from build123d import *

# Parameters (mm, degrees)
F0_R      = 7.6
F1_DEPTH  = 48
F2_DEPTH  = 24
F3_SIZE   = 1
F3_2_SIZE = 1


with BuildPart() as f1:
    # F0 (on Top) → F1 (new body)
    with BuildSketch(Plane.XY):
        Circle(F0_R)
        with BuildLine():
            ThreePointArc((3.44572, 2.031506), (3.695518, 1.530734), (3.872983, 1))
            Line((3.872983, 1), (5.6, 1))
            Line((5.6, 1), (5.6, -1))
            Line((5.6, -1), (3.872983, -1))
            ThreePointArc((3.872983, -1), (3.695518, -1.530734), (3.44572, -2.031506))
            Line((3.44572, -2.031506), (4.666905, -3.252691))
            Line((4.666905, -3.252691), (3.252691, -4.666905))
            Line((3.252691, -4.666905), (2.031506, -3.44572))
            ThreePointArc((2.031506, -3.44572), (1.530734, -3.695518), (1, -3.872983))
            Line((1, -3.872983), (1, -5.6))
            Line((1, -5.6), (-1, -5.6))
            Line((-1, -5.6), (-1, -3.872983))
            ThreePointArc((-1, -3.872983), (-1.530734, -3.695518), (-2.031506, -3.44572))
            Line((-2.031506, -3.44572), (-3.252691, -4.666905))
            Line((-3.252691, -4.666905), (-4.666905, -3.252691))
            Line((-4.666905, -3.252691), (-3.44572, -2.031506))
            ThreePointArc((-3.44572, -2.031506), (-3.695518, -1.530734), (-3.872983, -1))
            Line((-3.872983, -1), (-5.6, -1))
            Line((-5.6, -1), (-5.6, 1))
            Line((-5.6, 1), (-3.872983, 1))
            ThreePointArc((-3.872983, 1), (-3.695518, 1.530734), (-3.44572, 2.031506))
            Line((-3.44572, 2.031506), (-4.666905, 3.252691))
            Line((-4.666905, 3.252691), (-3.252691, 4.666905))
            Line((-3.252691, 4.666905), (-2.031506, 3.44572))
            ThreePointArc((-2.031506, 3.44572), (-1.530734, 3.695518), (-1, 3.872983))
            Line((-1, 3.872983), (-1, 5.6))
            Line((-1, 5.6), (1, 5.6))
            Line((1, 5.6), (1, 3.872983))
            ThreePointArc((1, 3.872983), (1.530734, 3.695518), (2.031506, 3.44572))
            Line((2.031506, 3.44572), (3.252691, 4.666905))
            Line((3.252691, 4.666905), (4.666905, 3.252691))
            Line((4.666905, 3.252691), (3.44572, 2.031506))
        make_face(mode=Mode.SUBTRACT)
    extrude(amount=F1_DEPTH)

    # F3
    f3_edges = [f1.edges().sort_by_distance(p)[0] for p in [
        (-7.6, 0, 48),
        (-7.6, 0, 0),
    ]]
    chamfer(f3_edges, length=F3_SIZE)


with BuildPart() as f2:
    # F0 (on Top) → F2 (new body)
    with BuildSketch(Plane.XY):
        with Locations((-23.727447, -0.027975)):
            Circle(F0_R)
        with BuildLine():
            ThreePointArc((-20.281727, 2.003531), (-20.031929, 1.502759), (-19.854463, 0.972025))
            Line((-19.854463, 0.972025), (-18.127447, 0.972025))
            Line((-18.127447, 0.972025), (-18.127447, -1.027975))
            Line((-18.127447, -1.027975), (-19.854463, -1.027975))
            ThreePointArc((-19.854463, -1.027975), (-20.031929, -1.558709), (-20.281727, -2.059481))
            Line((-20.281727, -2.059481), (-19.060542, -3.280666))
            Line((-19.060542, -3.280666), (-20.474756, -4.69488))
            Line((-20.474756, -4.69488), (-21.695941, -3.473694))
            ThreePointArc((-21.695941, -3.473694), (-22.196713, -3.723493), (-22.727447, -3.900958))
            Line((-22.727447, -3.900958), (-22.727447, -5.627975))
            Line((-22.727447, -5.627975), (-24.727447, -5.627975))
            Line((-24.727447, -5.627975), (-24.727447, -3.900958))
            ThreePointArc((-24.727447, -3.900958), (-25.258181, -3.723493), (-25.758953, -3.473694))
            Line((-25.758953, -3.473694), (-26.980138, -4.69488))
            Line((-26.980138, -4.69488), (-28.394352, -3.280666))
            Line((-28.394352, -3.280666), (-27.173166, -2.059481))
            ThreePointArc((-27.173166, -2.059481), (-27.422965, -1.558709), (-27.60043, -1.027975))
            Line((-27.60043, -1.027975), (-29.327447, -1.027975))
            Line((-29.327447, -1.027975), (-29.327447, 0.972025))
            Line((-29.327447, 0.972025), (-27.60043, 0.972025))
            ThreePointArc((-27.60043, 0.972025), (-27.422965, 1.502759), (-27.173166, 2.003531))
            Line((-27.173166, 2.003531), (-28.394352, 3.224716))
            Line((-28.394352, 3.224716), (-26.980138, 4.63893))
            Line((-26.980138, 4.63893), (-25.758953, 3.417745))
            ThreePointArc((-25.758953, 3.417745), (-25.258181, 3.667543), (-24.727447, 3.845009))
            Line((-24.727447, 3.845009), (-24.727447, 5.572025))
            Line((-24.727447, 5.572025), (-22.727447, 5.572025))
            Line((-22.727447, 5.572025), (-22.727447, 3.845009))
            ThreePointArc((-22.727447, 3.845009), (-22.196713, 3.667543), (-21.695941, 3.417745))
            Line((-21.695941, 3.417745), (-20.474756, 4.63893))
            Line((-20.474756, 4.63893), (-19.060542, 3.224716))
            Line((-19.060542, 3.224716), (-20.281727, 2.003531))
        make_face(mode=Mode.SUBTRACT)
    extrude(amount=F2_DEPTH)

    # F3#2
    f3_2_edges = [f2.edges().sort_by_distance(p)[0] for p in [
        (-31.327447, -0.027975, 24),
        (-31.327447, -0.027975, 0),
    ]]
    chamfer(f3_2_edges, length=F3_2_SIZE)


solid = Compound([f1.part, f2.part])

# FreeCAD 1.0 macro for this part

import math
import FreeCAD as App
import Part
import Sketcher


def edges_at(feature, points):
    """Names of the edges that pass closest to the given points."""
    edges = feature.Shape.Edges
    near = lambda p: min(range(len(edges)), key=lambda i: edges[i].distToShape(Part.Vertex(*p))[0])
    return sorted({f"Edge{near(p) + 1}" for p in points})

doc = App.newDocument("Part")
params = doc.addObject("Spreadsheet::Sheet", "Params")
for row, (alias, value) in enumerate([
    ("sketch1_diameter", "15.2 mm"),
    ("sketch1_width", "2 mm"),
    ("sketch1_length", "2.000001 mm"),
    ("pad1_length", "48 mm"),
    ("chamfer_size", "1 mm"),
    ("sketch2_diameter", "15.2 mm"),
    ("sketch2_width", "2 mm"),
    ("sketch2_length", "2.000001 mm"),
    ("pad2_length", "24 mm"),
    ("chamfer2_size", "1 mm"),
], start=1):
    params.set(f"A{row}", alias)
    params.set(f"B{row}", "=" + value)
    params.setAlias(f"B{row}", alias)

body = doc.addObject("PartDesign::Body", "Body")

# Sketch on XY plane
sketch1 = body.newObject("Sketcher::SketchObject", "Sketch")
sketch1.AttachmentSupport = (doc.getObject("XY_Plane"), [""])
sketch1.MapMode = "FlatFace"
sketch1.addGeometry([
    Part.Circle(App.Vector(0, 0, 0), App.Vector(0, 0, 1), 7.6),  # 0
    Part.LineSegment(App.Vector(4.7, 3.3, 0), App.Vector(3.4, 2, 0)),  # 1
    Part.ArcOfCircle(Part.Circle(App.Vector(0, 0, 0), App.Vector(0, 0, 1), 4), math.radians(14.48), math.radians(30.52)),  # 2
    Part.LineSegment(App.Vector(3.9, 1, 0), App.Vector(5.6, 1, 0)),  # 3
    Part.LineSegment(App.Vector(5.6, 1, 0), App.Vector(5.6, -1, 0)),  # 4
    Part.LineSegment(App.Vector(5.6, -1, 0), App.Vector(3.9, -1, 0)),  # 5
    Part.ArcOfCircle(Part.Circle(App.Vector(0, 0, 0), App.Vector(0, 0, 1), 4), math.radians(-30.52), math.radians(-14.48)),  # 6
    Part.LineSegment(App.Vector(3.4, -2, 0), App.Vector(4.7, -3.3, 0)),  # 7
    Part.LineSegment(App.Vector(4.7, -3.3, 0), App.Vector(3.3, -4.7, 0)),  # 8
    Part.LineSegment(App.Vector(3.3, -4.7, 0), App.Vector(2, -3.4, 0)),  # 9
    Part.ArcOfCircle(Part.Circle(App.Vector(0, 0, 0), App.Vector(0, 0, 1), 4), math.radians(-75.52), math.radians(-59.48)),  # 10
    Part.LineSegment(App.Vector(1, -3.9, 0), App.Vector(1, -5.6, 0)),  # 11
    Part.LineSegment(App.Vector(1, -5.6, 0), App.Vector(-1, -5.6, 0)),  # 12
    Part.LineSegment(App.Vector(-1, -5.6, 0), App.Vector(-1, -3.9, 0)),  # 13
    Part.ArcOfCircle(Part.Circle(App.Vector(0, 0, 0), App.Vector(0, 0, 1), 4), math.radians(-120.52), math.radians(-104.48)),  # 14
    Part.LineSegment(App.Vector(-2, -3.4, 0), App.Vector(-3.3, -4.7, 0)),  # 15
    Part.LineSegment(App.Vector(-3.3, -4.7, 0), App.Vector(-4.7, -3.3, 0)),  # 16
    Part.LineSegment(App.Vector(-4.7, -3.3, 0), App.Vector(-3.4, -2, 0)),  # 17
    Part.ArcOfCircle(Part.Circle(App.Vector(0, 0, 0), App.Vector(0, 0, 1), 4), math.radians(-165.52), math.radians(-149.48)),  # 18
    Part.LineSegment(App.Vector(-3.9, -1, 0), App.Vector(-5.6, -1, 0)),  # 19
    Part.LineSegment(App.Vector(-5.6, -1, 0), App.Vector(-5.6, 1, 0)),  # 20
    Part.LineSegment(App.Vector(-5.6, 1, 0), App.Vector(-3.9, 1, 0)),  # 21
    Part.ArcOfCircle(Part.Circle(App.Vector(0, 0, 0), App.Vector(0, 0, 1), 4), math.radians(149.48), math.radians(165.52)),  # 22
    Part.LineSegment(App.Vector(-3.4, 2, 0), App.Vector(-4.7, 3.3, 0)),  # 23
    Part.LineSegment(App.Vector(-4.7, 3.3, 0), App.Vector(-3.3, 4.7, 0)),  # 24
    Part.LineSegment(App.Vector(-3.3, 4.7, 0), App.Vector(-2, 3.4, 0)),  # 25
    Part.ArcOfCircle(Part.Circle(App.Vector(0, 0, 0), App.Vector(0, 0, 1), 4), math.radians(104.48), math.radians(120.52)),  # 26
    Part.LineSegment(App.Vector(-1, 3.9, 0), App.Vector(-1, 5.6, 0)),  # 27
    Part.LineSegment(App.Vector(-1, 5.6, 0), App.Vector(1, 5.6, 0)),  # 28
    Part.LineSegment(App.Vector(1, 5.6, 0), App.Vector(1, 3.9, 0)),  # 29
    Part.ArcOfCircle(Part.Circle(App.Vector(0, 0, 0), App.Vector(0, 0, 1), 4), math.radians(59.48), math.radians(75.52)),  # 30
    Part.LineSegment(App.Vector(2, 3.4, 0), App.Vector(3.3, 4.7, 0)),  # 31
    Part.LineSegment(App.Vector(3.3, 4.7, 0), App.Vector(4.7, 3.3, 0)),  # 32
], False)
sketch1.addConstraint([
    Sketcher.Constraint("Coincident", 1, 2, 2, 2),
    Sketcher.Constraint("Coincident", 2, 1, 3, 1),
    Sketcher.Constraint("Coincident", 3, 2, 4, 1),
    Sketcher.Constraint("Coincident", 4, 2, 5, 1),
    Sketcher.Constraint("Coincident", 5, 2, 6, 2),
    Sketcher.Constraint("Coincident", 6, 1, 7, 1),
    Sketcher.Constraint("Coincident", 7, 2, 8, 1),
    Sketcher.Constraint("Coincident", 8, 2, 9, 1),
    Sketcher.Constraint("Coincident", 9, 2, 10, 2),
    Sketcher.Constraint("Coincident", 10, 1, 11, 1),
    Sketcher.Constraint("Coincident", 11, 2, 12, 1),
    Sketcher.Constraint("Coincident", 12, 2, 13, 1),
    Sketcher.Constraint("Coincident", 13, 2, 14, 2),
    Sketcher.Constraint("Coincident", 14, 1, 15, 1),
    Sketcher.Constraint("Coincident", 15, 2, 16, 1),
    Sketcher.Constraint("Coincident", 16, 2, 17, 1),
    Sketcher.Constraint("Coincident", 17, 2, 18, 2),
    Sketcher.Constraint("Coincident", 18, 1, 19, 1),
    Sketcher.Constraint("Coincident", 19, 2, 20, 1),
    Sketcher.Constraint("Coincident", 20, 2, 21, 1),
    Sketcher.Constraint("Coincident", 21, 2, 22, 2),
    Sketcher.Constraint("Coincident", 22, 1, 23, 1),
    Sketcher.Constraint("Coincident", 23, 2, 24, 1),
    Sketcher.Constraint("Coincident", 24, 2, 25, 1),
    Sketcher.Constraint("Coincident", 25, 2, 26, 2),
    Sketcher.Constraint("Coincident", 26, 1, 27, 1),
    Sketcher.Constraint("Coincident", 27, 2, 28, 1),
    Sketcher.Constraint("Coincident", 28, 2, 29, 1),
    Sketcher.Constraint("Coincident", 29, 2, 30, 2),
    Sketcher.Constraint("Coincident", 30, 1, 31, 1),
    Sketcher.Constraint("Coincident", 31, 2, 32, 1),
    Sketcher.Constraint("Coincident", 32, 2, 1, 1),
    Sketcher.Constraint("Horizontal", 3),
    Sketcher.Constraint("Vertical", 4),
    Sketcher.Constraint("Horizontal", 5),
    Sketcher.Constraint("Vertical", 11),
    Sketcher.Constraint("Horizontal", 12),
    Sketcher.Constraint("Vertical", 13),
    Sketcher.Constraint("Horizontal", 19),
    Sketcher.Constraint("Vertical", 20),
    Sketcher.Constraint("Horizontal", 21),
    Sketcher.Constraint("Vertical", 27),
    Sketcher.Constraint("Horizontal", 28),
    Sketcher.Constraint("Vertical", 29),
    Sketcher.Constraint("Coincident", 0, 3, -1, 1),
    Sketcher.Constraint("Coincident", 2, 3, -1, 1),
    Sketcher.Constraint("Coincident", 6, 3, -1, 1),
    Sketcher.Constraint("Coincident", 10, 3, -1, 1),
    Sketcher.Constraint("Coincident", 14, 3, -1, 1),
    Sketcher.Constraint("Coincident", 18, 3, -1, 1),
    Sketcher.Constraint("Coincident", 22, 3, -1, 1),
    Sketcher.Constraint("Coincident", 26, 3, -1, 1),
    Sketcher.Constraint("Coincident", 30, 3, -1, 1),
    Sketcher.Constraint("Equal", 2, 6),
    Sketcher.Constraint("Equal", 6, 10),
    Sketcher.Constraint("Equal", 10, 14),
    Sketcher.Constraint("Equal", 14, 18),
    Sketcher.Constraint("Equal", 18, 22),
    Sketcher.Constraint("Equal", 22, 26),
    Sketcher.Constraint("Equal", 26, 30),
    Sketcher.Constraint("Symmetric", 3, 2, 19, 2, -1, 1),
    Sketcher.Constraint("Symmetric", 7, 2, 23, 2, -1, 1),
    Sketcher.Constraint("Symmetric", 8, 2, 24, 2, -1, 1),
    Sketcher.Constraint("Symmetric", 11, 2, 27, 2, -1, 1),
    Sketcher.Constraint("Symmetric", 15, 2, 31, 2, -1, 1),
    Sketcher.Constraint("Symmetric", 16, 2, 32, 2, -1, 1),
    Sketcher.Constraint("Symmetric", 8, 2, 15, 2, -2),
    Sketcher.Constraint("Symmetric", 7, 2, 16, 2, -2),
    Sketcher.Constraint("Perpendicular", 1, 7),
    Sketcher.Constraint("Perpendicular", 7, 8),
    Sketcher.Constraint("Perpendicular", 8, 9),
    Sketcher.Constraint("Perpendicular", 9, 15),
    Sketcher.Constraint("Perpendicular", 15, 16),
    Sketcher.Constraint("Perpendicular", 16, 17),
    Sketcher.Constraint("Perpendicular", 17, 23),
    Sketcher.Constraint("Perpendicular", 24, 25),
    Sketcher.Constraint("Perpendicular", 25, 31),
    Sketcher.Constraint("Horizontal", 10, 1, 13, 2),
    Sketcher.Constraint("Horizontal", 5, 2, 18, 1),
    Sketcher.Constraint("Horizontal", 3, 2, 20, 2),
    Sketcher.Constraint("Horizontal", 26, 1, 29, 2),
    Sketcher.Constraint("Equal", 28, 4),
    Sketcher.Constraint("Equal", 21, 11),
    Sketcher.Constraint("Equal", 7, 9),
    Sketcher.Constraint("Diameter", 0, 15.2),
    Sketcher.Constraint("DistanceX", 12, 2, 12, 1, 2.0),
    Sketcher.Constraint("Distance", 8, 2.000001),
    Sketcher.Constraint("DistanceX", -1, 1, 3, 2, 5.6),
    Sketcher.Constraint("Radius", 2, 4.000003),
    Sketcher.Constraint("DistanceY", 8, 2, 6, 1, 2.635399),
])
sketch1.setExpression("Constraints[84]", "Params.sketch1_diameter")
sketch1.setExpression("Constraints[85]", "Params.sketch1_width")
sketch1.setExpression("Constraints[86]", "Params.sketch1_length")
pad1 = body.newObject("PartDesign::Pad", "Pad")
pad1.Profile = sketch1
pad1.setExpression("Length", "Params.pad1_length")
doc.recompute()

chamfer = body.newObject("PartDesign::Chamfer", "Chamfer")
chamfer.Base = (pad1, edges_at(pad1, [(-7.6, 0, 48), (-7.6, 0, 0)]))
chamfer.setExpression("Size", "Params.chamfer_size")
body2 = doc.addObject("PartDesign::Body", "Body001")

# Sketch on XY plane
sketch2 = body2.newObject("Sketcher::SketchObject", "Sketch001")
sketch2.AttachmentSupport = (doc.getObject("XY_Plane001"), [""])
sketch2.MapMode = "FlatFace"
sketch2.addGeometry([
    Part.Circle(App.Vector(-23.7, 0, 0), App.Vector(0, 0, 1), 7.6),  # 0
    Part.LineSegment(App.Vector(-19.1, 3.2, 0), App.Vector(-20.3, 2, 0)),  # 1
    Part.ArcOfCircle(Part.Circle(App.Vector(-23.7, 0, 0), App.Vector(0, 0, 1), 4), math.radians(14.48), math.radians(30.52)),  # 2
    Part.LineSegment(App.Vector(-19.9, 1, 0), App.Vector(-18.1, 1, 0)),  # 3
    Part.LineSegment(App.Vector(-18.1, 1, 0), App.Vector(-18.1, -1, 0)),  # 4
    Part.LineSegment(App.Vector(-18.1, -1, 0), App.Vector(-19.9, -1, 0)),  # 5
    Part.ArcOfCircle(Part.Circle(App.Vector(-23.7, 0, 0), App.Vector(0, 0, 1), 4), math.radians(-30.52), math.radians(-14.48)),  # 6
    Part.LineSegment(App.Vector(-20.3, -2.1, 0), App.Vector(-19.1, -3.3, 0)),  # 7
    Part.LineSegment(App.Vector(-19.1, -3.3, 0), App.Vector(-20.5, -4.7, 0)),  # 8
    Part.LineSegment(App.Vector(-20.5, -4.7, 0), App.Vector(-21.7, -3.5, 0)),  # 9
    Part.ArcOfCircle(Part.Circle(App.Vector(-23.7, 0, 0), App.Vector(0, 0, 1), 4), math.radians(-75.52), math.radians(-59.48)),  # 10
    Part.LineSegment(App.Vector(-22.7, -3.9, 0), App.Vector(-22.7, -5.6, 0)),  # 11
    Part.LineSegment(App.Vector(-22.7, -5.6, 0), App.Vector(-24.7, -5.6, 0)),  # 12
    Part.LineSegment(App.Vector(-24.7, -5.6, 0), App.Vector(-24.7, -3.9, 0)),  # 13
    Part.ArcOfCircle(Part.Circle(App.Vector(-23.7, 0, 0), App.Vector(0, 0, 1), 4), math.radians(-120.52), math.radians(-104.48)),  # 14
    Part.LineSegment(App.Vector(-25.8, -3.5, 0), App.Vector(-27, -4.7, 0)),  # 15
    Part.LineSegment(App.Vector(-27, -4.7, 0), App.Vector(-28.4, -3.3, 0)),  # 16
    Part.LineSegment(App.Vector(-28.4, -3.3, 0), App.Vector(-27.2, -2.1, 0)),  # 17
    Part.ArcOfCircle(Part.Circle(App.Vector(-23.7, 0, 0), App.Vector(0, 0, 1), 4), math.radians(-165.52), math.radians(-149.48)),  # 18
    Part.LineSegment(App.Vector(-27.6, -1, 0), App.Vector(-29.3, -1, 0)),  # 19
    Part.LineSegment(App.Vector(-29.3, -1, 0), App.Vector(-29.3, 1, 0)),  # 20
    Part.LineSegment(App.Vector(-29.3, 1, 0), App.Vector(-27.6, 1, 0)),  # 21
    Part.ArcOfCircle(Part.Circle(App.Vector(-23.7, 0, 0), App.Vector(0, 0, 1), 4), math.radians(149.48), math.radians(165.52)),  # 22
    Part.LineSegment(App.Vector(-27.2, 2, 0), App.Vector(-28.4, 3.2, 0)),  # 23
    Part.LineSegment(App.Vector(-28.4, 3.2, 0), App.Vector(-27, 4.6, 0)),  # 24
    Part.LineSegment(App.Vector(-27, 4.6, 0), App.Vector(-25.8, 3.4, 0)),  # 25
    Part.ArcOfCircle(Part.Circle(App.Vector(-23.7, 0, 0), App.Vector(0, 0, 1), 4), math.radians(104.48), math.radians(120.52)),  # 26
    Part.LineSegment(App.Vector(-24.7, 3.8, 0), App.Vector(-24.7, 5.6, 0)),  # 27
    Part.LineSegment(App.Vector(-24.7, 5.6, 0), App.Vector(-22.7, 5.6, 0)),  # 28
    Part.LineSegment(App.Vector(-22.7, 5.6, 0), App.Vector(-22.7, 3.8, 0)),  # 29
    Part.ArcOfCircle(Part.Circle(App.Vector(-23.7, 0, 0), App.Vector(0, 0, 1), 4), math.radians(59.48), math.radians(75.52)),  # 30
    Part.LineSegment(App.Vector(-21.7, 3.4, 0), App.Vector(-20.5, 4.6, 0)),  # 31
    Part.LineSegment(App.Vector(-20.5, 4.6, 0), App.Vector(-19.1, 3.2, 0)),  # 32
], False)
sketch2.addConstraint([
    Sketcher.Constraint("Coincident", 1, 2, 2, 2),
    Sketcher.Constraint("Coincident", 2, 1, 3, 1),
    Sketcher.Constraint("Coincident", 3, 2, 4, 1),
    Sketcher.Constraint("Coincident", 4, 2, 5, 1),
    Sketcher.Constraint("Coincident", 5, 2, 6, 2),
    Sketcher.Constraint("Coincident", 6, 1, 7, 1),
    Sketcher.Constraint("Coincident", 7, 2, 8, 1),
    Sketcher.Constraint("Coincident", 8, 2, 9, 1),
    Sketcher.Constraint("Coincident", 9, 2, 10, 2),
    Sketcher.Constraint("Coincident", 10, 1, 11, 1),
    Sketcher.Constraint("Coincident", 11, 2, 12, 1),
    Sketcher.Constraint("Coincident", 12, 2, 13, 1),
    Sketcher.Constraint("Coincident", 13, 2, 14, 2),
    Sketcher.Constraint("Coincident", 14, 1, 15, 1),
    Sketcher.Constraint("Coincident", 15, 2, 16, 1),
    Sketcher.Constraint("Coincident", 16, 2, 17, 1),
    Sketcher.Constraint("Coincident", 17, 2, 18, 2),
    Sketcher.Constraint("Coincident", 18, 1, 19, 1),
    Sketcher.Constraint("Coincident", 19, 2, 20, 1),
    Sketcher.Constraint("Coincident", 20, 2, 21, 1),
    Sketcher.Constraint("Coincident", 21, 2, 22, 2),
    Sketcher.Constraint("Coincident", 22, 1, 23, 1),
    Sketcher.Constraint("Coincident", 23, 2, 24, 1),
    Sketcher.Constraint("Coincident", 24, 2, 25, 1),
    Sketcher.Constraint("Coincident", 25, 2, 26, 2),
    Sketcher.Constraint("Coincident", 26, 1, 27, 1),
    Sketcher.Constraint("Coincident", 27, 2, 28, 1),
    Sketcher.Constraint("Coincident", 28, 2, 29, 1),
    Sketcher.Constraint("Coincident", 29, 2, 30, 2),
    Sketcher.Constraint("Coincident", 30, 1, 31, 1),
    Sketcher.Constraint("Coincident", 31, 2, 32, 1),
    Sketcher.Constraint("Coincident", 32, 2, 1, 1),
    Sketcher.Constraint("Horizontal", 3),
    Sketcher.Constraint("Vertical", 4),
    Sketcher.Constraint("Horizontal", 5),
    Sketcher.Constraint("Vertical", 11),
    Sketcher.Constraint("Horizontal", 12),
    Sketcher.Constraint("Vertical", 13),
    Sketcher.Constraint("Horizontal", 19),
    Sketcher.Constraint("Vertical", 20),
    Sketcher.Constraint("Horizontal", 21),
    Sketcher.Constraint("Vertical", 27),
    Sketcher.Constraint("Horizontal", 28),
    Sketcher.Constraint("Vertical", 29),
    Sketcher.Constraint("Equal", 2, 6),
    Sketcher.Constraint("Equal", 10, 14),
    Sketcher.Constraint("Equal", 14, 18),
    Sketcher.Constraint("Equal", 18, 22),
    Sketcher.Constraint("Equal", 6, 26),
    Sketcher.Constraint("Equal", 26, 30),
    Sketcher.Constraint("Perpendicular", 1, 7),
    Sketcher.Constraint("Perpendicular", 7, 8),
    Sketcher.Constraint("Perpendicular", 8, 9),
    Sketcher.Constraint("Perpendicular", 9, 15),
    Sketcher.Constraint("Perpendicular", 15, 16),
    Sketcher.Constraint("Perpendicular", 16, 17),
    Sketcher.Constraint("Perpendicular", 17, 23),
    Sketcher.Constraint("Perpendicular", 23, 24),
    Sketcher.Constraint("Perpendicular", 24, 25),
    Sketcher.Constraint("Perpendicular", 25, 31),
    Sketcher.Constraint("Perpendicular", 31, 32),
    Sketcher.Constraint("Horizontal", 10, 3, 14, 3),
    Sketcher.Constraint("Horizontal", 26, 3, 30, 3),
    Sketcher.Constraint("Horizontal", 10, 1, 13, 2),
    Sketcher.Constraint("Horizontal", 9, 2, 14, 1),
    Sketcher.Constraint("Horizontal", 8, 2, 15, 2),
    Sketcher.Constraint("Horizontal", 7, 2, 16, 2),
    Sketcher.Constraint("Horizontal", 6, 1, 17, 2),
    Sketcher.Constraint("Horizontal", 5, 2, 18, 1),
    Sketcher.Constraint("Horizontal", 3, 2, 20, 2),
    Sketcher.Constraint("Horizontal", 1, 2, 22, 1),
    Sketcher.Constraint("Horizontal", 26, 1, 29, 2),
    Sketcher.Constraint("Horizontal", 25, 2, 30, 1),
    Sketcher.Constraint("Horizontal", 24, 2, 31, 2),
    Sketcher.Constraint("Horizontal", 23, 2, 32, 2),
    Sketcher.Constraint("Vertical", 2, 3, 6, 3),
    Sketcher.Constraint("Vertical", 18, 3, 22, 3),
    Sketcher.Constraint("Vertical", 2, 1, 5, 2),
    Sketcher.Constraint("Vertical", 1, 2, 6, 1),
    Sketcher.Constraint("Vertical", 18, 1, 21, 2),
    Sketcher.Constraint("Vertical", 16, 2, 23, 2),
    Sketcher.Constraint("Vertical", 15, 2, 24, 2),
    Sketcher.Constraint("Vertical", 14, 1, 25, 2),
    Sketcher.Constraint("Vertical", 13, 2, 26, 1),
    Sketcher.Constraint("Vertical", 11, 2, 28, 2),
    Sketcher.Constraint("Equal", 5, 19),
    Sketcher.Constraint("Equal", 28, 4),
    Sketcher.Constraint("Equal", 21, 11),
    Sketcher.Constraint("Equal", 13, 27),
    Sketcher.Constraint("Equal", 7, 9),
    Sketcher.Constraint("Diameter", 0, 15.2),
    Sketcher.Constraint("DistanceX", 12, 2, 12, 1, 2.0),
    Sketcher.Constraint("Distance", 8, 2.000001),
    Sketcher.Constraint("DistanceY", 0, 3, 2, 1, 1.0),
    Sketcher.Constraint("DistanceX", 0, 3, 3, 2, 5.6),
    Sketcher.Constraint("Radius", 10, 3.999959),
    Sketcher.Constraint("Radius", 2, 4.000053),
    Sketcher.Constraint("DistanceX", 14, 3, 2, 1, 3.872999),
    Sketcher.Constraint("DistanceX", 26, 3, 1, 2, 3.445699),
    Sketcher.Constraint("DistanceY", 8, 2, 6, 1, 2.635399),
    Sketcher.Constraint("DistanceY", 6, 3, 25, 2, 3.445699),
    Sketcher.Constraint("DistanceX", 3, 1, 3, 2, 1.727016),
    Sketcher.Constraint("DistanceX", 10, 3, -1, 1, 23.727432),
    Sketcher.Constraint("DistanceY", 18, 3, -1, 1, 0.02799),
    Sketcher.Constraint("DistanceY", 22, 3, -1, 1, 0.02796),
    Sketcher.Constraint("DistanceX", 30, 3, -1, 1, 23.727468),
    Sketcher.Constraint("DistanceX", 9, 2, -1, 1, 21.695941),
])
sketch2.setExpression("Constraints[90]", "Params.sketch2_diameter")
sketch2.setExpression("Constraints[91]", "Params.sketch2_width")
sketch2.setExpression("Constraints[92]", "Params.sketch2_length")
pad2 = body2.newObject("PartDesign::Pad", "Pad001")
pad2.Profile = sketch2
pad2.setExpression("Length", "Params.pad2_length")
doc.recompute()

chamfer2 = body2.newObject("PartDesign::Chamfer", "Chamfer001")
chamfer2.Base = (pad2, edges_at(pad2, [(-31.327, -0.028, 24), (-31.327, -0.028, 0)]))
chamfer2.setExpression("Size", "Params.chamfer2_size")

doc.recompute()
